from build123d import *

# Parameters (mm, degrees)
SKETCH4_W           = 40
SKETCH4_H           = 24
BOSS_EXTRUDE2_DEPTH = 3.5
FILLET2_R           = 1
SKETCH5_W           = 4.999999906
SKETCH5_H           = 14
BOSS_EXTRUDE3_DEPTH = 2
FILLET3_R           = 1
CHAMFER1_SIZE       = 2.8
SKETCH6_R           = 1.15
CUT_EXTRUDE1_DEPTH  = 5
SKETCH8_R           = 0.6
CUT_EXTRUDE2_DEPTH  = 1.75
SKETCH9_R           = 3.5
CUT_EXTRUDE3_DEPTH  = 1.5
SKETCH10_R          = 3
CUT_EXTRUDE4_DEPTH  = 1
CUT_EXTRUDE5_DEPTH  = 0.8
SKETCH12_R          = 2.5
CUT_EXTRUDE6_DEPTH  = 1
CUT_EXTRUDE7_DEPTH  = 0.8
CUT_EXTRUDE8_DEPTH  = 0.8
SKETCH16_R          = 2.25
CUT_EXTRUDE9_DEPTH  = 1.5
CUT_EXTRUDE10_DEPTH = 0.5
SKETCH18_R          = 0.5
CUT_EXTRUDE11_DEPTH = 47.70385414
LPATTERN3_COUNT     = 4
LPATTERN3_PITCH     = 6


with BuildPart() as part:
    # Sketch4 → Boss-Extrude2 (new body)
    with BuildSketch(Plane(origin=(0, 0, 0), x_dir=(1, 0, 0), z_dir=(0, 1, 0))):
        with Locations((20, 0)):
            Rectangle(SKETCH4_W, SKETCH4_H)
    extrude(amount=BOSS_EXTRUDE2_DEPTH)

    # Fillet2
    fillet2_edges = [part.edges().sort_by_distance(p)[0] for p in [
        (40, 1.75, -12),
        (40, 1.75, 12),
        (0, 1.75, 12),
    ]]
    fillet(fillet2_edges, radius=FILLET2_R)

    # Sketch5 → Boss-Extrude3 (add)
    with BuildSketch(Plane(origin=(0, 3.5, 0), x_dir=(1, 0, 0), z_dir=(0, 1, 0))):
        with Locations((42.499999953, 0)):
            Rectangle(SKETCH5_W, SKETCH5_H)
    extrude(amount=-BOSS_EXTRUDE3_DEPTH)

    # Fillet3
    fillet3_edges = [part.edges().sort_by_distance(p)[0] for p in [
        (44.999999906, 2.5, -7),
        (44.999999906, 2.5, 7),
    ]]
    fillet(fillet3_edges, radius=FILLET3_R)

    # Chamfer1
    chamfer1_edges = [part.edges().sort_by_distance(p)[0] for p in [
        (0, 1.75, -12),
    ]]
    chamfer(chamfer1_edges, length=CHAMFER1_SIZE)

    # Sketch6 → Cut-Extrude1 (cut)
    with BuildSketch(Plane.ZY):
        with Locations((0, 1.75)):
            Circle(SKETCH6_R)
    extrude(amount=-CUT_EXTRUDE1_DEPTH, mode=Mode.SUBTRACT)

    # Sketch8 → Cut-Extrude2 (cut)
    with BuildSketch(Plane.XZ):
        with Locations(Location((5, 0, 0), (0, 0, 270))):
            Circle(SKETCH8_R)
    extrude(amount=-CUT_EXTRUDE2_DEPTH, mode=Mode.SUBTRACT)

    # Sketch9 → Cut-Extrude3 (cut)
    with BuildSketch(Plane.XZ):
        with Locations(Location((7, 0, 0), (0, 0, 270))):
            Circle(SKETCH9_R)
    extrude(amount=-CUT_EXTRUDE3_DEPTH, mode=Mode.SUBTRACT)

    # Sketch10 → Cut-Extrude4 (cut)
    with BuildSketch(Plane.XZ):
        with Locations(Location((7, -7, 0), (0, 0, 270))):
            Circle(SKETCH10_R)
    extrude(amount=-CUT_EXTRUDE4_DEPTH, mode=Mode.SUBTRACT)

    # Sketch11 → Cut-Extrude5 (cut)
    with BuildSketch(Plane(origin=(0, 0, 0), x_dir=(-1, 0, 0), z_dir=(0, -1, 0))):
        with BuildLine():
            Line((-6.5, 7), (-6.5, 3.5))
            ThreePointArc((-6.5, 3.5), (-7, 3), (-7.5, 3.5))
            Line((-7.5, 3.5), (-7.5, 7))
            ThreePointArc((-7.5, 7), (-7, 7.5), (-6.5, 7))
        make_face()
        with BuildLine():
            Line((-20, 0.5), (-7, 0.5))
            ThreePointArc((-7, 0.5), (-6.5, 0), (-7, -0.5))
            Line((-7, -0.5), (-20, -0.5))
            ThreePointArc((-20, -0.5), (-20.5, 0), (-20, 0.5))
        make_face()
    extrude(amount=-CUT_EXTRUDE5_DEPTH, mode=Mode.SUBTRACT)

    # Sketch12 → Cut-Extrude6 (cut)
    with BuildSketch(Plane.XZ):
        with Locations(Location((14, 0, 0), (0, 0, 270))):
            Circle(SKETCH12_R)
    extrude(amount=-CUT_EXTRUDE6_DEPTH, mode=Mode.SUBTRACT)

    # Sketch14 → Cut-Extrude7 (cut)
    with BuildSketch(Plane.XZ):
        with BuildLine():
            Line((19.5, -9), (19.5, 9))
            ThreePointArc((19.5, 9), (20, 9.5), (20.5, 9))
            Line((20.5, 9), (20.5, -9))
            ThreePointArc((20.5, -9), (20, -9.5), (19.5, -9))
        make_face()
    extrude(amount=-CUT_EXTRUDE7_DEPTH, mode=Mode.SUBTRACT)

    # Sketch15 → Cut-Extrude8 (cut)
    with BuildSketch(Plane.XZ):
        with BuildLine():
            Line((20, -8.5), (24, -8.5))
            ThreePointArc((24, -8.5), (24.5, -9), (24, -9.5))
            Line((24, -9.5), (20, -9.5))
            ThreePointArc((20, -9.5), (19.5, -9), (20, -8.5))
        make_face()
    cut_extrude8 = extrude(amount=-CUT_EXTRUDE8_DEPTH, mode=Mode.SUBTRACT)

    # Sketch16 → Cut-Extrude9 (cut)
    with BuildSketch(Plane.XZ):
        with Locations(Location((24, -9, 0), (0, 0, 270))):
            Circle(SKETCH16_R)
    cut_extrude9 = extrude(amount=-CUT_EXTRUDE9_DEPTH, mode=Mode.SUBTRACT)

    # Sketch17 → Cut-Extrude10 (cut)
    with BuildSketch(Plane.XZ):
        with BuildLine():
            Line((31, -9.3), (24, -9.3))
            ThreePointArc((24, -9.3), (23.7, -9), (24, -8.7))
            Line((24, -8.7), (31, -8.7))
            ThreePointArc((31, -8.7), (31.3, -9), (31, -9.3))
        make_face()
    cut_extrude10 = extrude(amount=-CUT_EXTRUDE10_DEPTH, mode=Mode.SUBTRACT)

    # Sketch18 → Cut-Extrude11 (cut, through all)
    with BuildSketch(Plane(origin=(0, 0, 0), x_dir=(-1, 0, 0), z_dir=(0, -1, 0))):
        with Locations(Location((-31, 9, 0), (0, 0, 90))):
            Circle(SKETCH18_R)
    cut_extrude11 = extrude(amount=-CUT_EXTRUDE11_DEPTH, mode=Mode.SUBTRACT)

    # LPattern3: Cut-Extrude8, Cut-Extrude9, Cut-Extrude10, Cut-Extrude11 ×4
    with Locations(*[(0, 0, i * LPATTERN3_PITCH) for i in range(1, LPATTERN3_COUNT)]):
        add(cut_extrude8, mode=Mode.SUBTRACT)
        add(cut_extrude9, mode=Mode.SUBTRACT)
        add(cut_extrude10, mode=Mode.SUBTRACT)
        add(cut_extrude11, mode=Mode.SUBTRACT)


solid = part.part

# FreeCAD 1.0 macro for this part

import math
import FreeCAD as App
import Part
import Sketcher

V = App.Vector


def edges_at(feature, points):
    """Names of the edges that pass closest to the given points."""
    edges = feature.Shape.Edges
    near = lambda p: min(range(len(edges)), key=lambda i: edges[i].distToShape(Part.Vertex(*p))[0])
    return sorted({f"Edge{near(p) + 1}" for p in points})

doc = App.newDocument("Part")
body = doc.addObject("PartDesign::Body", "Body")

# Sketch on XZ plane
sketch1 = body.newObject("Sketcher::SketchObject", "Sketch")
sketch1.AttachmentSupport = (doc.getObject("XZ_Plane"), [""])
sketch1.MapMode = "FlatFace"
sketch1.addGeometry([
    Part.LineSegment(V(0, -12, 0), V(0, 12, 0)),
    Part.LineSegment(V(0, 12, 0), V(40, 12, 0)),
    Part.LineSegment(V(40, 12, 0), V(40, -12, 0)),
    Part.LineSegment(V(40, -12, 0), V(0, -12, 0)),
], False)
sketch1.addConstraint([
    Sketcher.Constraint("Coincident", 0, 2, 1, 1),
    Sketcher.Constraint("Coincident", 1, 2, 2, 1),
    Sketcher.Constraint("Coincident", 2, 2, 3, 1),
    Sketcher.Constraint("Coincident", 3, 2, 0, 1),
    Sketcher.Constraint("Vertical", 0),
    Sketcher.Constraint("Horizontal", 1),
    Sketcher.Constraint("Vertical", 2),
    Sketcher.Constraint("Horizontal", 3),
    Sketcher.Constraint("Symmetric", 0, 2, 3, 2, -1, 1),
    Sketcher.Constraint("DistanceX", 1, 1, 1, 2, 40.0),
    Sketcher.Constraint("DistanceY", 0, 1, 0, 2, 24.0),
])
pad1 = body.newObject("PartDesign::Pad", "Pad")
pad1.Profile = sketch1
pad1.Length = 3.5
pad1.Reversed = True
doc.recompute()

fillet = body.newObject("PartDesign::Fillet", "Fillet")
fillet.Base = (pad1, edges_at(pad1, [(40, 1.75, -12), (40, 1.75, 12), (0, 1.75, 12)]))
fillet.Radius = 1

# Sketch on XZ plane
sketch2 = body.newObject("Sketcher::SketchObject", "Sketch001")
sketch2.AttachmentSupport = (doc.getObject("XZ_Plane"), [""])
sketch2.MapMode = "FlatFace"
sketch2.AttachmentOffset = App.Placement(V(0, 0, -3.5), App.Rotation())
sketch2.addGeometry([
    Part.LineSegment(V(40, -7, 0), V(40, 7, 0)),
    Part.LineSegment(V(40, 7, 0), V(45, 7, 0)),
    Part.LineSegment(V(45, 7, 0), V(45, -7, 0)),
    Part.LineSegment(V(45, -7, 0), V(40, -7, 0)),
], False)
sketch2.addConstraint([
    Sketcher.Constraint("Coincident", 0, 2, 1, 1),
    Sketcher.Constraint("Coincident", 1, 2, 2, 1),
    Sketcher.Constraint("Coincident", 2, 2, 3, 1),
    Sketcher.Constraint("Coincident", 3, 2, 0, 1),
    Sketcher.Constraint("Vertical", 0),
    Sketcher.Constraint("Horizontal", 1),
    Sketcher.Constraint("Vertical", 2),
    Sketcher.Constraint("Horizontal", 3),
    Sketcher.Constraint("DistanceX", 1, 1, 1, 2, 5.0),
    Sketcher.Constraint("DistanceY", 0, 1, 0, 2, 14.0),
    Sketcher.Constraint("DistanceX", -1, 1, 0, 2, 40.0),
    Sketcher.Constraint("DistanceY", -1, 1, 0, 2, 7.0),
])
pad2 = body.newObject("PartDesign::Pad", "Pad001")
pad2.Profile = sketch2
pad2.Length = 2
doc.recompute()

fillet2 = body.newObject("PartDesign::Fillet", "Fillet001")
fillet2.Base = (pad2, edges_at(pad2, [(45, 2.5, -7), (45, 2.5, 7)]))
fillet2.Radius = 1
doc.recompute()

chamfer = body.newObject("PartDesign::Chamfer", "Chamfer")
chamfer.Base = (fillet2, edges_at(fillet2, [(0, 1.75, -12)]))
chamfer.Size = 2.8

# Sketch on YZ plane
sketch3 = body.newObject("Sketcher::SketchObject", "Sketch002")
sketch3.AttachmentSupport = (doc.getObject("YZ_Plane"), [""])
sketch3.MapMode = "FlatFace"
sketch3.addGeometry(Part.Circle(V(1.75, 0, 0), V(0, 0, 1), 1.15), False)
sketch3.addConstraint([
    Sketcher.Constraint("PointOnObject", 0, 3, -1),
    Sketcher.Constraint("Diameter", 0, 2.3),
    Sketcher.Constraint("DistanceX", -1, 1, 0, 3, 1.75),
])
pocket1 = body.newObject("PartDesign::Pocket", "Pocket")
pocket1.Profile = sketch3
pocket1.Length = 5
pocket1.Reversed = True

# Sketch on XZ plane
sketch4 = body.newObject("Sketcher::SketchObject", "Sketch003")
sketch4.AttachmentSupport = (doc.getObject("XZ_Plane"), [""])
sketch4.MapMode = "FlatFace"
sketch4.addGeometry(Part.Circle(V(5, 0, 0), V(0, 0, 1), 0.6), False)
sketch4.addConstraint([
    Sketcher.Constraint("PointOnObject", 0, 3, -1),
    Sketcher.Constraint("Diameter", 0, 1.2),
    Sketcher.Constraint("DistanceX", -1, 1, 0, 3, 5.0),
])
pocket2 = body.newObject("PartDesign::Pocket", "Pocket001")
pocket2.Profile = sketch4
pocket2.Length = 1.75

# Sketch on XZ plane
sketch5 = body.newObject("Sketcher::SketchObject", "Sketch004")
sketch5.AttachmentSupport = (doc.getObject("XZ_Plane"), [""])
sketch5.MapMode = "FlatFace"
sketch5.addGeometry(Part.Circle(V(7, 0, 0), V(0, 0, 1), 3.5), False)
sketch5.addConstraint([
    Sketcher.Constraint("PointOnObject", 0, 3, -1),
    Sketcher.Constraint("Diameter", 0, 7.0),
    Sketcher.Constraint("DistanceX", -1, 1, 0, 3, 7.0),
])
pocket3 = body.newObject("PartDesign::Pocket", "Pocket002")
pocket3.Profile = sketch5
pocket3.Length = 1.5

# Sketch on XZ plane
sketch6 = body.newObject("Sketcher::SketchObject", "Sketch005")
sketch6.AttachmentSupport = (doc.getObject("XZ_Plane"), [""])
sketch6.MapMode = "FlatFace"
sketch6.addGeometry(Part.Circle(V(7, -7, 0), V(0, 0, 1), 3), False)
sketch6.addConstraint([
    Sketcher.Constraint("Diameter", 0, 6.0),
    Sketcher.Constraint("DistanceX", -1, 1, 0, 3, 7.0),
    Sketcher.Constraint("DistanceY", 0, 3, -1, 1, 7.0),
])
pocket4 = body.newObject("PartDesign::Pocket", "Pocket003")
pocket4.Profile = sketch6
pocket4.Length = 1

# Sketch on XZ plane
sketch7 = body.newObject("Sketcher::SketchObject", "Sketch006")
sketch7.AttachmentSupport = (doc.getObject("XZ_Plane"), [""])
sketch7.MapMode = "FlatFace"
sketch7.addGeometry([
    Part.LineSegment(V(6.5, -3.5, 0), V(6.5, -7, 0)),  # 0
    Part.ArcOfCircle(Part.Circle(V(7, -7, 0), V(0, 0, 1), 0.5), math.radians(180), math.radians(360)),  # 1
    Part.LineSegment(V(7.5, -7, 0), V(7.5, -3.5, 0)),  # 2
    Part.ArcOfCircle(Part.Circle(V(7, -3.5, 0), V(0, 0, 1), 0.5), math.radians(0), math.radians(180)),  # 3
    Part.LineSegment(V(7, -0.5, 0), V(20, -0.5, 0)),  # 4
    Part.ArcOfCircle(Part.Circle(V(20, 0, 0), V(0, 0, 1), 0.5), math.radians(-90), math.radians(90)),  # 5
    Part.LineSegment(V(20, 0.5, 0), V(7, 0.5, 0)),  # 6
    Part.ArcOfCircle(Part.Circle(V(7, 0, 0), V(0, 0, 1), 0.5), math.radians(90), math.radians(270)),  # 7
], False)
sketch7.addConstraint([
    Sketcher.Constraint("Tangent", 0, 2, 1, 1),
    Sketcher.Constraint("Tangent", 1, 2, 2, 1),
    Sketcher.Constraint("Tangent", 2, 2, 3, 1),
    Sketcher.Constraint("Tangent", 3, 2, 0, 1),
    Sketcher.Constraint("Tangent", 4, 2, 5, 1),
    Sketcher.Constraint("Tangent", 5, 2, 6, 1),
    Sketcher.Constraint("Tangent", 6, 2, 7, 1),
    Sketcher.Constraint("Tangent", 7, 2, 4, 1),
    Sketcher.Constraint("Vertical", 0),
    Sketcher.Constraint("Vertical", 2),
    Sketcher.Constraint("Horizontal", 4),
    Sketcher.Constraint("Horizontal", 6),
    Sketcher.Constraint("Equal", 3, 5),
    Sketcher.Constraint("PointOnObject", 5, 3, -1),
    Sketcher.Constraint("Vertical", 3, 3, 7, 3),
    Sketcher.Constraint("Radius", 1, 0.5),
    Sketcher.Constraint("DistanceX", 4, 1, 4, 2, 13.0),
    Sketcher.Constraint("DistanceY", 0, 2, 0, 1, 3.5),
    Sketcher.Constraint("DistanceX", -1, 1, 1, 3, 7.0),
    Sketcher.Constraint("DistanceY", 1, 3, -1, 1, 7.0),
])
pocket5 = body.newObject("PartDesign::Pocket", "Pocket004")
pocket5.Profile = sketch7
pocket5.Length = 0.8

# Sketch on XZ plane
sketch8 = body.newObject("Sketcher::SketchObject", "Sketch007")
sketch8.AttachmentSupport = (doc.getObject("XZ_Plane"), [""])
sketch8.MapMode = "FlatFace"
sketch8.addGeometry(Part.Circle(V(14, 0, 0), V(0, 0, 1), 2.5), False)
sketch8.addConstraint([
    Sketcher.Constraint("PointOnObject", 0, 3, -1),
    Sketcher.Constraint("Diameter", 0, 5.0),
    Sketcher.Constraint("DistanceX", -1, 1, 0, 3, 14.0),
])
pocket6 = body.newObject("PartDesign::Pocket", "Pocket005")
pocket6.Profile = sketch8
pocket6.Length = 1

# Sketch on XZ plane
sketch9 = body.newObject("Sketcher::SketchObject", "Sketch008")
sketch9.AttachmentSupport = (doc.getObject("XZ_Plane"), [""])
sketch9.MapMode = "FlatFace"
sketch9.addGeometry([
    Part.LineSegment(V(19.5, 9, 0), V(19.5, -9, 0)),
    Part.ArcOfCircle(Part.Circle(V(20, -9, 0), V(0, 0, 1), 0.5), math.radians(180), math.radians(360)),
    Part.LineSegment(V(20.5, -9, 0), V(20.5, 9, 0)),
    Part.ArcOfCircle(Part.Circle(V(20, 9, 0), V(0, 0, 1), 0.5), math.radians(0), math.radians(180)),
], False)
sketch9.addConstraint([
    Sketcher.Constraint("Tangent", 0, 2, 1, 1),
    Sketcher.Constraint("Tangent", 1, 2, 2, 1),
    Sketcher.Constraint("Tangent", 2, 2, 3, 1),
    Sketcher.Constraint("Tangent", 3, 2, 0, 1),
    Sketcher.Constraint("Vertical", 0),
    Sketcher.Constraint("Vertical", 2),
    Sketcher.Constraint("Radius", 1, 0.5),
    Sketcher.Constraint("DistanceY", 0, 2, 0, 1, 18.0),
    Sketcher.Constraint("DistanceX", -1, 1, 1, 3, 20.0),
    Sketcher.Constraint("DistanceY", 1, 3, -1, 1, 9.0),
])
pocket7 = body.newObject("PartDesign::Pocket", "Pocket006")
pocket7.Profile = sketch9
pocket7.Length = 0.8

# Sketch on XZ plane
sketch10 = body.newObject("Sketcher::SketchObject", "Sketch009")
sketch10.AttachmentSupport = (doc.getObject("XZ_Plane"), [""])
sketch10.MapMode = "FlatFace"
sketch10.addGeometry([
    Part.LineSegment(V(24, -8.5, 0), V(20, -8.5, 0)),
    Part.ArcOfCircle(Part.Circle(V(20, -9, 0), V(0, 0, 1), 0.5), math.radians(90), math.radians(270)),
    Part.LineSegment(V(20, -9.5, 0), V(24, -9.5, 0)),
    Part.ArcOfCircle(Part.Circle(V(24, -9, 0), V(0, 0, 1), 0.5), math.radians(-90), math.radians(90)),
], False)
sketch10.addConstraint([
    Sketcher.Constraint("Tangent", 0, 2, 1, 1),
    Sketcher.Constraint("Tangent", 1, 2, 2, 1),
    Sketcher.Constraint("Tangent", 2, 2, 3, 1),
    Sketcher.Constraint("Tangent", 3, 2, 0, 1),
    Sketcher.Constraint("Horizontal", 0),
    Sketcher.Constraint("Horizontal", 2),
    Sketcher.Constraint("Radius", 1, 0.5),
    Sketcher.Constraint("DistanceX", 0, 2, 0, 1, 4.0),
    Sketcher.Constraint("DistanceX", -1, 1, 1, 3, 20.0),
    Sketcher.Constraint("DistanceY", 1, 3, -1, 1, 9.0),
])
pocket8 = body.newObject("PartDesign::Pocket", "Pocket007")
pocket8.Profile = sketch10
pocket8.Length = 0.8

# Sketch on XZ plane
sketch11 = body.newObject("Sketcher::SketchObject", "Sketch010")
sketch11.AttachmentSupport = (doc.getObject("XZ_Plane"), [""])
sketch11.MapMode = "FlatFace"
sketch11.addGeometry(Part.Circle(V(24, -9, 0), V(0, 0, 1), 2.25), False)
sketch11.addConstraint([
    Sketcher.Constraint("Diameter", 0, 4.5),
    Sketcher.Constraint("DistanceX", -1, 1, 0, 3, 24.0),
    Sketcher.Constraint("DistanceY", 0, 3, -1, 1, 9.0),
])
pocket9 = body.newObject("PartDesign::Pocket", "Pocket008")
pocket9.Profile = sketch11
pocket9.Length = 1.5

# Sketch on XZ plane
sketch12 = body.newObject("Sketcher::SketchObject", "Sketch011")
sketch12.AttachmentSupport = (doc.getObject("XZ_Plane"), [""])
sketch12.MapMode = "FlatFace"
sketch12.addGeometry([
    Part.LineSegment(V(24, -9.3, 0), V(31, -9.3, 0)),
    Part.ArcOfCircle(Part.Circle(V(31, -9, 0), V(0, 0, 1), 0.3), math.radians(-90), math.radians(90)),
    Part.LineSegment(V(31, -8.7, 0), V(24, -8.7, 0)),
    Part.ArcOfCircle(Part.Circle(V(24, -9, 0), V(0, 0, 1), 0.3), math.radians(90), math.radians(270)),
], False)
sketch12.addConstraint([
    Sketcher.Constraint("Tangent", 0, 2, 1, 1),
    Sketcher.Constraint("Tangent", 1, 2, 2, 1),
    Sketcher.Constraint("Tangent", 2, 2, 3, 1),
    Sketcher.Constraint("Tangent", 3, 2, 0, 1),
    Sketcher.Constraint("Horizontal", 0),
    Sketcher.Constraint("Horizontal", 2),
    Sketcher.Constraint("Radius", 1, 0.3),
    Sketcher.Constraint("DistanceX", 0, 1, 0, 2, 7.0),
    Sketcher.Constraint("DistanceX", -1, 1, 1, 3, 31.0),
    Sketcher.Constraint("DistanceY", 1, 3, -1, 1, 9.0),
])
pocket10 = body.newObject("PartDesign::Pocket", "Pocket009")
pocket10.Profile = sketch12
pocket10.Length = 0.5

# Sketch on XZ plane
sketch13 = body.newObject("Sketcher::SketchObject", "Sketch012")
sketch13.AttachmentSupport = (doc.getObject("XZ_Plane"), [""])
sketch13.MapMode = "FlatFace"
sketch13.addGeometry(Part.Circle(V(31, -9, 0), V(0, 0, 1), 0.5), False)
sketch13.addConstraint([
    Sketcher.Constraint("Diameter", 0, 1.0),
    Sketcher.Constraint("DistanceX", -1, 1, 0, 3, 31.0),
    Sketcher.Constraint("DistanceY", 0, 3, -1, 1, 9.0),
])
pocket11 = body.newObject("PartDesign::Pocket", "Pocket010")
pocket11.Profile = sketch13
pocket11.Type = "ThroughAll"
doc.recompute()

linearpattern = body.newObject("PartDesign::LinearPattern", "LinearPattern")
linearpattern.Originals = [pocket8, pocket9, pocket10, pocket11]
linearpattern.Direction = (doc.getObject("Z_Axis"), [""])
linearpattern.Mode = "offset"
linearpattern.Offset = 6
linearpattern.Occurrences = 4
body.Tip = linearpattern

doc.recompute()
